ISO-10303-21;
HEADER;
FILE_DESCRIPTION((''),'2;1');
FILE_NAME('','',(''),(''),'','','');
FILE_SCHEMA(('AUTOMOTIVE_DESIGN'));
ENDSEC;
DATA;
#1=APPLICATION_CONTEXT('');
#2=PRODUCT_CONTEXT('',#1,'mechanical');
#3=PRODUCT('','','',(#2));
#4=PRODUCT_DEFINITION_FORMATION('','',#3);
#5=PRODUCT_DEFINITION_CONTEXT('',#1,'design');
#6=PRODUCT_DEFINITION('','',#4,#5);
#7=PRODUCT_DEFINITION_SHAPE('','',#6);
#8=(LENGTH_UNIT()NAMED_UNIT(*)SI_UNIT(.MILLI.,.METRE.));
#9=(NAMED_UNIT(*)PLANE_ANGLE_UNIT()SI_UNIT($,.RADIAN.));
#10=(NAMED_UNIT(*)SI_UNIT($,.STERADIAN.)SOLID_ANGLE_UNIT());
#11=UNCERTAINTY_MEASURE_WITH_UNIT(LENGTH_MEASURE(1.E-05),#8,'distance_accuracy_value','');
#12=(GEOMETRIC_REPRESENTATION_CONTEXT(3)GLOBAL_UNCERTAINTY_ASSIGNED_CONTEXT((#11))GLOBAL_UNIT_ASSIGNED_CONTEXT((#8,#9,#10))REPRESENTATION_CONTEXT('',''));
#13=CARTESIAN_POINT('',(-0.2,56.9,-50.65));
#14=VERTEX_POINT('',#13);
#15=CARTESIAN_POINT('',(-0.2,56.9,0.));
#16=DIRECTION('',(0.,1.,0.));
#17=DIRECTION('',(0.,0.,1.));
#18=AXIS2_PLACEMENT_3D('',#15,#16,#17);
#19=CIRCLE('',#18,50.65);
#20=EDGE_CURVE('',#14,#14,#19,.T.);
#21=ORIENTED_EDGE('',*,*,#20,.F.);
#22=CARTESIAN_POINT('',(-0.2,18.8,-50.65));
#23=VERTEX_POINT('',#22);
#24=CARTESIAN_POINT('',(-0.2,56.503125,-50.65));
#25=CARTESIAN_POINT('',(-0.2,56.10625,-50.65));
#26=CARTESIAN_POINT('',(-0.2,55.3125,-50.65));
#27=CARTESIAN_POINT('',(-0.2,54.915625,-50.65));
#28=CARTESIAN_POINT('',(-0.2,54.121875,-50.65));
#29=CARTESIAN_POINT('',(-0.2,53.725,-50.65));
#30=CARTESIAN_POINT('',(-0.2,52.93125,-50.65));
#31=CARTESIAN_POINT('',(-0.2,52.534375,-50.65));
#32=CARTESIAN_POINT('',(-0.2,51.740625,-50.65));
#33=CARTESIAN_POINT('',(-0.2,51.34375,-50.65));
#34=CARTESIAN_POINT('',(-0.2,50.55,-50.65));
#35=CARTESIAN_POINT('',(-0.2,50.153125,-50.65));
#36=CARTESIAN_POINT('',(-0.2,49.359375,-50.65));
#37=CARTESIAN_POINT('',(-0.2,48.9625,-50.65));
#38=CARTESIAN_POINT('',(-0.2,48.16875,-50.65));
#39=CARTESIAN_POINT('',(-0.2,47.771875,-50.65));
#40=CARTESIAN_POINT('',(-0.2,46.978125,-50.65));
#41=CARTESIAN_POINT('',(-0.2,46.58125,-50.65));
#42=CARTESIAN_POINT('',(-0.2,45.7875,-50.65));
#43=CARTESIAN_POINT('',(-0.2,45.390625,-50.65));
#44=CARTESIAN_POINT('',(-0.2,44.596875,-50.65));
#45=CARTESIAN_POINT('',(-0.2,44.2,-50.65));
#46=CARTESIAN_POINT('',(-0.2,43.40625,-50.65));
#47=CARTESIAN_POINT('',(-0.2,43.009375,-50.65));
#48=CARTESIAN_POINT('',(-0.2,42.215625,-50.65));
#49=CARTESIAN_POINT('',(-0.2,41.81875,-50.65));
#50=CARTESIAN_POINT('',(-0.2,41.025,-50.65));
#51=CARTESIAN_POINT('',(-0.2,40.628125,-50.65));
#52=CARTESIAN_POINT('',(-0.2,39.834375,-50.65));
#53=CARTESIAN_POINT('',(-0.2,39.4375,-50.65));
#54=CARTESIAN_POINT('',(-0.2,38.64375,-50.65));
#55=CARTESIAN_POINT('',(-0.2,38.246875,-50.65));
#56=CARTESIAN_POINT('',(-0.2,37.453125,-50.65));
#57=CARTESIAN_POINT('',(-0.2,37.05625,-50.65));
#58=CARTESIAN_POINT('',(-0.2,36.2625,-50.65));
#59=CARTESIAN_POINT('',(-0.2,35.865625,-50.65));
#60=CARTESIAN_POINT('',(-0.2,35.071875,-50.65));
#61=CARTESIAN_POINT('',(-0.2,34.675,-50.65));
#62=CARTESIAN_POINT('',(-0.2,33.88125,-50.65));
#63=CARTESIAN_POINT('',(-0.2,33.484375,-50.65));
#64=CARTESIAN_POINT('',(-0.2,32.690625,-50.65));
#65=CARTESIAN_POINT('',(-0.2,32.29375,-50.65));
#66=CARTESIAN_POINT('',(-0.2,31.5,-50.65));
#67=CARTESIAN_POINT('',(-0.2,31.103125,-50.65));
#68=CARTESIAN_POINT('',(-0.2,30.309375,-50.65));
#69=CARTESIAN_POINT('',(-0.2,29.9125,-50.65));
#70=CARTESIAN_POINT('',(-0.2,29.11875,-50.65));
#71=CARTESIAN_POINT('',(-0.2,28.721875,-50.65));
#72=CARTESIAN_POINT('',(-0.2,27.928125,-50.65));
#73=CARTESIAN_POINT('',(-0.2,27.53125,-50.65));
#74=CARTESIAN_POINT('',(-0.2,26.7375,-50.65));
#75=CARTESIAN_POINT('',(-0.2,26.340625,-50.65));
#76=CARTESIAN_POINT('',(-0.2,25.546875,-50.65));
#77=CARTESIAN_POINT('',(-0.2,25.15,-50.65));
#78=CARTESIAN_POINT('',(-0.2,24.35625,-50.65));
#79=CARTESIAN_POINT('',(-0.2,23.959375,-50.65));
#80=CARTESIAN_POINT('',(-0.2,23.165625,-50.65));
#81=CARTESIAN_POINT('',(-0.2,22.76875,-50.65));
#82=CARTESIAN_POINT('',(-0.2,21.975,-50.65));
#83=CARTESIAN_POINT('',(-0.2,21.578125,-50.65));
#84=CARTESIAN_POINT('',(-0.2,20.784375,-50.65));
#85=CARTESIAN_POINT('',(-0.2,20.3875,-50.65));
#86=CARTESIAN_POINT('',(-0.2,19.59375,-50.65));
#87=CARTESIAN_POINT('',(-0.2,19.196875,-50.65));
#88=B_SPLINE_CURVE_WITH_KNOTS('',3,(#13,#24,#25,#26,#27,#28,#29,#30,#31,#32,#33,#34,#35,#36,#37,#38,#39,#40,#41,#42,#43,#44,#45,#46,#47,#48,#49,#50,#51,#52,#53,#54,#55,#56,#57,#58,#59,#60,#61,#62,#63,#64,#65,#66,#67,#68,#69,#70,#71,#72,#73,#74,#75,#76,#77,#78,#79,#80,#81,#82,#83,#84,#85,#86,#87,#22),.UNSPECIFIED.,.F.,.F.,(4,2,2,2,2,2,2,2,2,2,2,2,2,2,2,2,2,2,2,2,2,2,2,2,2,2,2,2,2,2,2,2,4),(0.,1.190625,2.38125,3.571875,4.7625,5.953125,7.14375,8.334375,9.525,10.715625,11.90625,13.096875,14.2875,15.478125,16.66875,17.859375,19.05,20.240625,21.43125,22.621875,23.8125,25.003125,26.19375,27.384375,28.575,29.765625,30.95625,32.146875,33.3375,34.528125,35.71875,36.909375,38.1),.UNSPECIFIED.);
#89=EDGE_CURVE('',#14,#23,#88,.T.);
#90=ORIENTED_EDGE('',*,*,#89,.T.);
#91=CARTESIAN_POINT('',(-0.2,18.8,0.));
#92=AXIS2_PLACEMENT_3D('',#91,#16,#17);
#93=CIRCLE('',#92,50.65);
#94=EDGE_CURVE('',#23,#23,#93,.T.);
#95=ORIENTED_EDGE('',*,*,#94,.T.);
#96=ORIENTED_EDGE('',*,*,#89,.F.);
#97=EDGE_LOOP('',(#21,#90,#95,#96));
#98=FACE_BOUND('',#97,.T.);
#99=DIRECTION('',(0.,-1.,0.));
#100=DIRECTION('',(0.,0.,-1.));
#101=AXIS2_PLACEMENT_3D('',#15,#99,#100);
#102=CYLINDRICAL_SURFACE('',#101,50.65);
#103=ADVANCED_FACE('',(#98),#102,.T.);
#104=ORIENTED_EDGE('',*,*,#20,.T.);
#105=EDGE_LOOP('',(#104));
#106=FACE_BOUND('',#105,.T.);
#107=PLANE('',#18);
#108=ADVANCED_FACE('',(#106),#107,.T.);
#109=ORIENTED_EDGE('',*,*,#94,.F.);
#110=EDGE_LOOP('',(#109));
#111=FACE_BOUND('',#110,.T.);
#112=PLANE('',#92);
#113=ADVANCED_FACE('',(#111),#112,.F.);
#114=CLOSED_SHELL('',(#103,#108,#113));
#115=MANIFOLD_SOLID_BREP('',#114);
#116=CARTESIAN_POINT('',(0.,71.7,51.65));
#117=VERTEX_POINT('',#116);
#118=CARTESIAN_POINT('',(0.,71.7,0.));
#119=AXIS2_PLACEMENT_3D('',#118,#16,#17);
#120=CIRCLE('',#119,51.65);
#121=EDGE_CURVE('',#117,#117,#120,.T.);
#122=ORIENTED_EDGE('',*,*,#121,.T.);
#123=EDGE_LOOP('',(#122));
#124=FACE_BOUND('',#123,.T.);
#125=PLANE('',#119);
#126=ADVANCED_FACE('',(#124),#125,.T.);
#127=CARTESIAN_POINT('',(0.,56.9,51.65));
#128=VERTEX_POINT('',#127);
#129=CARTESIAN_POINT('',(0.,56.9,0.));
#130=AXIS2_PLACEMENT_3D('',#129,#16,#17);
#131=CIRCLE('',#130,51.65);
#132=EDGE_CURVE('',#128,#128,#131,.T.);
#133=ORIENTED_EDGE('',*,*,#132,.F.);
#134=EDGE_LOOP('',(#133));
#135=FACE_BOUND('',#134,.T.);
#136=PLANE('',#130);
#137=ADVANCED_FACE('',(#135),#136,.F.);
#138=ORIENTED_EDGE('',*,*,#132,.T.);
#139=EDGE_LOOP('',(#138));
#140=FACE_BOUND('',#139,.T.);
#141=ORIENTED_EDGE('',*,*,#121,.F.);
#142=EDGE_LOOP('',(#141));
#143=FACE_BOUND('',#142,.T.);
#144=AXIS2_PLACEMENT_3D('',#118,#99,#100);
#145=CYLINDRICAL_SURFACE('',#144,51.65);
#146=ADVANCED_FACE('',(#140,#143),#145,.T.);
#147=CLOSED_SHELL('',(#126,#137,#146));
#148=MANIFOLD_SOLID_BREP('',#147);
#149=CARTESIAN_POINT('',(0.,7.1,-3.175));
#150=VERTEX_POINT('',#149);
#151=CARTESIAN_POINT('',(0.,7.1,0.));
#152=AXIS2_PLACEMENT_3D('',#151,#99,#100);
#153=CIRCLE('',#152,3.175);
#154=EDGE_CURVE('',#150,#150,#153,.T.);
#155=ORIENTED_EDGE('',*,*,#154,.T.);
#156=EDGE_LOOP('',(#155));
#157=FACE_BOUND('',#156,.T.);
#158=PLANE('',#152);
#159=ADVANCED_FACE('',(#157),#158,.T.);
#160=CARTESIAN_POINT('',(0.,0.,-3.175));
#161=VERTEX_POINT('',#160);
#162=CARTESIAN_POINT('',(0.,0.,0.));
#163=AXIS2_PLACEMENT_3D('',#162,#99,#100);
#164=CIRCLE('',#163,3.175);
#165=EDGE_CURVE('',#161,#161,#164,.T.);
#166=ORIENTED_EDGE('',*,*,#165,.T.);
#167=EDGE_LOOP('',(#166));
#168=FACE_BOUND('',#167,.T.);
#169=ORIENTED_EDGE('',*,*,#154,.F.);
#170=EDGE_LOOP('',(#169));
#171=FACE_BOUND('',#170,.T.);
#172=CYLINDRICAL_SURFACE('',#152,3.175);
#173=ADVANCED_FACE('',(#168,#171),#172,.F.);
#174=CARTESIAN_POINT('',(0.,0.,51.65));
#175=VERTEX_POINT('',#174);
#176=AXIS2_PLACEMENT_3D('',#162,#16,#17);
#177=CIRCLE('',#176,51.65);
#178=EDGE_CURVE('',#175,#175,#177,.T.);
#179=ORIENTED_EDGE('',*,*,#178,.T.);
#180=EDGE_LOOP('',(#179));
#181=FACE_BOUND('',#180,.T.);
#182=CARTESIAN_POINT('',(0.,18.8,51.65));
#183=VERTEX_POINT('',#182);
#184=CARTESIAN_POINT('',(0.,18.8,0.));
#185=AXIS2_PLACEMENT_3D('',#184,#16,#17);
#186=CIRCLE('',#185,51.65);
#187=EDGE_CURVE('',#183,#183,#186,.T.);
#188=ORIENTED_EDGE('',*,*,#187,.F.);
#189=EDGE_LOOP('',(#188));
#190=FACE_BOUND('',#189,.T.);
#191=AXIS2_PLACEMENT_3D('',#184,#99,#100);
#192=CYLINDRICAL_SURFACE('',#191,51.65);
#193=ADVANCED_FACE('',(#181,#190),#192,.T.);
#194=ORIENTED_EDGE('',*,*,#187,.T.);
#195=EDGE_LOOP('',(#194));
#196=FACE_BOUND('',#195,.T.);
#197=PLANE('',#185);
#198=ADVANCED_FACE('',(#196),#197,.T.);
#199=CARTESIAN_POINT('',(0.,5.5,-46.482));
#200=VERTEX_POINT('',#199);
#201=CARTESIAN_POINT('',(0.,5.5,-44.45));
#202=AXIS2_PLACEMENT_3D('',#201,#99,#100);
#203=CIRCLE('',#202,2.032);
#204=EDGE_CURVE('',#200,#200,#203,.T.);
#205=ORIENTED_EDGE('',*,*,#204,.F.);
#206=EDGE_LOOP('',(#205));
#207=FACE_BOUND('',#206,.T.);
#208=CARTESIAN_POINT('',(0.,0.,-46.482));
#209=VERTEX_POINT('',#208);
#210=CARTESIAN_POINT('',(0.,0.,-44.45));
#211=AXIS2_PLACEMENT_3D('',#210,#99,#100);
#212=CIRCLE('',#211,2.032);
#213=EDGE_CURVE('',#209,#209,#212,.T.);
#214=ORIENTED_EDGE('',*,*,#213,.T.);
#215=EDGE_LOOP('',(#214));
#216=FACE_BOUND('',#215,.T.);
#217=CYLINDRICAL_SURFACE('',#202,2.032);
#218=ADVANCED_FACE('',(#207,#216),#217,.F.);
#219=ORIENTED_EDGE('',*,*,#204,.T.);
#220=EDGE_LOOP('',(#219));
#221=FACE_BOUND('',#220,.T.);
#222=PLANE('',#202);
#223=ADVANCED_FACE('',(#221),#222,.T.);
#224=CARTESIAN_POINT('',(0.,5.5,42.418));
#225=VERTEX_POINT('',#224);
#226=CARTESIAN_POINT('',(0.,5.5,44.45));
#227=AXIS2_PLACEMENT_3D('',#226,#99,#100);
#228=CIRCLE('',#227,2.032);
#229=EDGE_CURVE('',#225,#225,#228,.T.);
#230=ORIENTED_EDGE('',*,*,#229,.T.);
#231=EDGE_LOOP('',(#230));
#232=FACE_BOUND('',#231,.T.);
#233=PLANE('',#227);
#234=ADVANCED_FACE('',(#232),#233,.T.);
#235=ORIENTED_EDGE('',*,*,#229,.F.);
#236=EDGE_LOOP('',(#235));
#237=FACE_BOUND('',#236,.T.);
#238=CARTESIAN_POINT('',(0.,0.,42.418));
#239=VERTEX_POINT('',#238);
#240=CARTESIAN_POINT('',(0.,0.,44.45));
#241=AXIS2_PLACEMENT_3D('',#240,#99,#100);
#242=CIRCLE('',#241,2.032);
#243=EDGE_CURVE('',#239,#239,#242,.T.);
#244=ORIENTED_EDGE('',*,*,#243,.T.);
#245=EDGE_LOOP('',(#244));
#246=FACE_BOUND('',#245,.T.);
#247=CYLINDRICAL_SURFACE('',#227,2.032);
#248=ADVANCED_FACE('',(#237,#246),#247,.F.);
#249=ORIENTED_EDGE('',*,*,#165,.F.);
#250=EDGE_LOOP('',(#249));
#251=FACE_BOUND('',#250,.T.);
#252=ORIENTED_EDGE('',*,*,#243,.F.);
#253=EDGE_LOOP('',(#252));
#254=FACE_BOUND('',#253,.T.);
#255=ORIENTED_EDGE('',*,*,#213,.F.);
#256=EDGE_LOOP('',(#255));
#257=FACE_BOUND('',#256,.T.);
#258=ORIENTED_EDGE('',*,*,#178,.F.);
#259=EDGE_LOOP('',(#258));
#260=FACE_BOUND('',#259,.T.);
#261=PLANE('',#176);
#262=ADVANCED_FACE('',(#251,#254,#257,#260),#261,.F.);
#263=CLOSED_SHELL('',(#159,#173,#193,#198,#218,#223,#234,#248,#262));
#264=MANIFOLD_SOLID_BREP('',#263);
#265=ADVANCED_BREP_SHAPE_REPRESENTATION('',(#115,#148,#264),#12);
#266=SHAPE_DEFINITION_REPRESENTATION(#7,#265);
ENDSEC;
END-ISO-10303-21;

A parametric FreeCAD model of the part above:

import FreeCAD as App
import Part
import Sketcher

doc = App.newDocument("Part")
body = doc.addObject("PartDesign::Body", "Body")

# Sketch on XZ plane
sketch1 = body.newObject("Sketcher::SketchObject", "Sketch")
sketch1.AttachmentSupport = (doc.getObject("XZ_Plane"), [""])
sketch1.MapMode = "FlatFace"
sketch1.addGeometry(Part.Circle(App.Vector(0, 0, 0), App.Vector(0, 0, 1), 52), False)
sketch1.addConstraint(Sketcher.Constraint("Coincident", 0, 3, -1, 1))
sketch1.addConstraint(Sketcher.Constraint("Diameter", 0, 103.3))
pad1 = body.newObject("PartDesign::Pad", "Pad")
pad1.Profile = sketch1
pad1.Length = 18.8
pad1.Reversed = True

# Sketch on XZ plane
sketch2 = body.newObject("Sketcher::SketchObject", "Sketch001")
sketch2.AttachmentSupport = (doc.getObject("XZ_Plane"), [""])
sketch2.MapMode = "FlatFace"
sketch2.addGeometry(Part.Circle(App.Vector(0, -44.5, 0), App.Vector(0, 0, 1), 2), False)
sketch2.addGeometry(Part.Circle(App.Vector(0, 44.5, 0), App.Vector(0, 0, 1), 2), False)
sketch2.addConstraint(Sketcher.Constraint("Equal", 0, 1))
sketch2.addConstraint(Sketcher.Constraint("Symmetric", 0, 3, 1, 3, -1, 1))
sketch2.addConstraint(Sketcher.Constraint("PointOnObject", 0, 3, -2))
sketch2.addConstraint(Sketcher.Constraint("Diameter", 0, 4.064))
sketch2.addConstraint(Sketcher.Constraint("DistanceY", 0, 3, 1, 3, 88.9))
pocket1 = body.newObject("PartDesign::Pocket", "Pocket")
pocket1.Profile = sketch2
pocket1.Length = 5.5

# Sketch on XZ plane
sketch3 = body.newObject("Sketcher::SketchObject", "Sketch002")
sketch3.AttachmentSupport = (doc.getObject("XZ_Plane"), [""])
sketch3.MapMode = "FlatFace"
sketch3.addGeometry(Part.Circle(App.Vector(0, 0, 0), App.Vector(0, 0, 1), 3.2), False)
sketch3.addConstraint(Sketcher.Constraint("Coincident", 0, 3, -1, 1))
sketch3.addConstraint(Sketcher.Constraint("Diameter", 0, 6.35))
pocket2 = body.newObject("PartDesign::Pocket", "Pocket001")
pocket2.Profile = sketch3
pocket2.Length = 7.1
body2 = doc.addObject("PartDesign::Body", "Body001")

# Sketch on XZ plane
sketch4 = body2.newObject("Sketcher::SketchObject", "Sketch003")
sketch4.AttachmentSupport = (doc.getObject("XZ_Plane001"), [""])
sketch4.MapMode = "FlatFace"
sketch4.AttachmentOffset = App.Placement(App.Vector(0, 0, -18.8), App.Rotation())
sketch4.addGeometry(Part.Circle(App.Vector(0, 0, 0), App.Vector(0, 0, 1), 51), False)
sketch4.addConstraint(Sketcher.Constraint("PointOnObject", 0, 3, -1))
sketch4.addConstraint(Sketcher.Constraint("Diameter", 0, 101.3))
sketch4.addConstraint(Sketcher.Constraint("DistanceX", 0, 3, -1, 1, 0.2))
pad2 = body2.newObject("PartDesign::Pad", "Pad001")
pad2.Profile = sketch4
pad2.Length = 38.1
pad2.Reversed = True
body3 = doc.addObject("PartDesign::Body", "Body002")

# Sketch on XZ plane
sketch5 = body3.newObject("Sketcher::SketchObject", "Sketch004")
sketch5.AttachmentSupport = (doc.getObject("XZ_Plane002"), [""])
sketch5.MapMode = "FlatFace"
sketch5.AttachmentOffset = App.Placement(App.Vector(0, 0, -56.9), App.Rotation())
sketch5.addGeometry(Part.Circle(App.Vector(0, 0, 0), App.Vector(0, 0, 1), 52), False)
sketch5.addConstraint(Sketcher.Constraint("Coincident", 0, 3, -1, 1))
sketch5.addConstraint(Sketcher.Constraint("Diameter", 0, 103.3))
pad3 = body3.newObject("PartDesign::Pad", "Pad002")
pad3.Profile = sketch5
pad3.Length = 14.8
pad3.Reversed = True

doc.recompute()
